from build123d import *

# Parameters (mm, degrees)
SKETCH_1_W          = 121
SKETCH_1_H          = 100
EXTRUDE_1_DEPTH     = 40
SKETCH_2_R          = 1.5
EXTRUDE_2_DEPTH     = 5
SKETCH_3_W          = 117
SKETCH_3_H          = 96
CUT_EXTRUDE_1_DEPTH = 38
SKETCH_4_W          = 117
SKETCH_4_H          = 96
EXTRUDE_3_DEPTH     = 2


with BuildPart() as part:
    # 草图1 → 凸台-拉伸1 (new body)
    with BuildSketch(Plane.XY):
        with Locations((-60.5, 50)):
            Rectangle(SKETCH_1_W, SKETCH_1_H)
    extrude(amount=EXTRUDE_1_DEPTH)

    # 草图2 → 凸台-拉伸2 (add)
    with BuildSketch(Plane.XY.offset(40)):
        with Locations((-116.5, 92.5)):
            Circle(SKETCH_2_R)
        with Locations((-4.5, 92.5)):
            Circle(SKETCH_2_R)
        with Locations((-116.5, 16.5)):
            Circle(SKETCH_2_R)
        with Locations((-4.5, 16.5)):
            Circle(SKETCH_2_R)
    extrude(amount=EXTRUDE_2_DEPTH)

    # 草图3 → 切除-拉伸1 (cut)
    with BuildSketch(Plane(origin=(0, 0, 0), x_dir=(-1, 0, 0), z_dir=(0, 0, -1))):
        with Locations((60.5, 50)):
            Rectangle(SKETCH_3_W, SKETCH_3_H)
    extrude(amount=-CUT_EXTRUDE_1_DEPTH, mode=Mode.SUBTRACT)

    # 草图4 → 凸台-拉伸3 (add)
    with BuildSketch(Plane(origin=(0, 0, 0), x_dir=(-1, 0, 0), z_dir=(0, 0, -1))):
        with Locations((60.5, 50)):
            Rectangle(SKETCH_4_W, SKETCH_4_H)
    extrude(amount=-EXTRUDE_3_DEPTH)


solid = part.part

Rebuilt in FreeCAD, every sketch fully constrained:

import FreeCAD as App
import Part
import Sketcher
from FreeCAD import Vector

doc = App.newDocument("Part")
body = doc.addObject("PartDesign::Body", "Body")

# Sketch on XY plane
sketch1 = doc.addObject("Sketcher::SketchObject", "Sketch")
body.addObject(sketch1)
sketch1.AttachmentSupport = (doc.XY_Plane, [""])
sketch1.MapMode = "FlatFace"
sketch1.addGeometry([
    Part.LineSegment(Vector(-121, 100, 0), Vector(-121, 0, 0)),
    Part.LineSegment(Vector(-121, 0, 0), Vector(0, 0, 0)),
    Part.LineSegment(Vector(0, 0, 0), Vector(0, 100, 0)),
    Part.LineSegment(Vector(0, 100, 0), Vector(-121, 100, 0)),
], False)
sketch1.addConstraint([
    Sketcher.Constraint("Coincident", 0, 2, 1, 1),
    Sketcher.Constraint("Coincident", 1, 2, 2, 1),
    Sketcher.Constraint("Coincident", 2, 2, 3, 1),
    Sketcher.Constraint("Coincident", 3, 2, 0, 1),
    Sketcher.Constraint("Vertical", 0),
    Sketcher.Constraint("Horizontal", 1),
    Sketcher.Constraint("Vertical", 2),
    Sketcher.Constraint("Horizontal", 3),
    Sketcher.Constraint("Coincident", 1, 2, -1, 1),
    Sketcher.Constraint("DistanceX", 1, 1, 1, 2, 121.0),
    Sketcher.Constraint("DistanceY", 0, 2, 0, 1, 100.0),
])
pad1 = doc.addObject("PartDesign::Pad", "Pad")
body.addObject(pad1)
pad1.Profile = sketch1
pad1.Length = 40

# Sketch on XY plane
sketch2 = doc.addObject("Sketcher::SketchObject", "Sketch001")
body.addObject(sketch2)
sketch2.AttachmentSupport = (doc.XY_Plane, [""])
sketch2.MapMode = "FlatFace"
sketch2.AttachmentOffset = App.Placement(Vector(0, 0, 40), App.Rotation())
sketch2.addGeometry([
    Part.Circle(Vector(-116.5, 92.5, 0), Vector(0, 0, 1), 1.5),
    Part.Circle(Vector(-4.5, 92.5, 0), Vector(0, 0, 1), 1.5),
    Part.Circle(Vector(-116.5, 16.5, 0), Vector(0, 0, 1), 1.5),
    Part.Circle(Vector(-4.5, 16.5, 0), Vector(0, 0, 1), 1.5),
], False)
sketch2.addConstraint([
    Sketcher.Constraint("Equal", 0, 1),
    Sketcher.Constraint("Equal", 1, 2),
    Sketcher.Constraint("Equal", 2, 3),
    Sketcher.Constraint("Horizontal", 0, 3, 1, 3),
    Sketcher.Constraint("Horizontal", 2, 3, 3, 3),
    Sketcher.Constraint("Vertical", 0, 3, 2, 3),
    Sketcher.Constraint("Vertical", 1, 3, 3, 3),
    Sketcher.Constraint("Diameter", 0, 3.0),
    Sketcher.Constraint("DistanceX", 0, 3, 1, 3, 112.0),
    Sketcher.Constraint("DistanceY", 2, 3, 0, 3, 76.0),
    Sketcher.Constraint("DistanceX", 0, 3, -1, 1, 116.5),
    Sketcher.Constraint("DistanceY", -1, 1, 0, 3, 92.5),
])
pad2 = doc.addObject("PartDesign::Pad", "Pad001")
body.addObject(pad2)
pad2.Profile = sketch2
pad2.Length = 5

# Sketch on XY plane
sketch3 = doc.addObject("Sketcher::SketchObject", "Sketch002")
body.addObject(sketch3)
sketch3.AttachmentSupport = (doc.XY_Plane, [""])
sketch3.MapMode = "FlatFace"
sketch3.addGeometry([
    Part.LineSegment(Vector(-2, 98, 0), Vector(-2, 2, 0)),
    Part.LineSegment(Vector(-2, 2, 0), Vector(-119, 2, 0)),
    Part.LineSegment(Vector(-119, 2, 0), Vector(-119, 98, 0)),
    Part.LineSegment(Vector(-119, 98, 0), Vector(-2, 98, 0)),
], False)
sketch3.addConstraint([
    Sketcher.Constraint("Coincident", 0, 2, 1, 1),
    Sketcher.Constraint("Coincident", 1, 2, 2, 1),
    Sketcher.Constraint("Coincident", 2, 2, 3, 1),
    Sketcher.Constraint("Coincident", 3, 2, 0, 1),
    Sketcher.Constraint("Vertical", 0),
    Sketcher.Constraint("Horizontal", 1),
    Sketcher.Constraint("Vertical", 2),
    Sketcher.Constraint("Horizontal", 3),
    Sketcher.Constraint("DistanceX", 1, 2, 1, 1, 117.0),
    Sketcher.Constraint("DistanceY", 0, 2, 0, 1, 96.0),
    Sketcher.Constraint("DistanceX", 0, 2, -1, 1, 2.0),
    Sketcher.Constraint("DistanceY", -1, 1, 0, 2, 2.0),
])
pocket1 = doc.addObject("PartDesign::Pocket", "Pocket")
body.addObject(pocket1)
pocket1.Profile = sketch3
pocket1.Length = 38
pocket1.Reversed = True

# Sketch on XY plane
sketch4 = doc.addObject("Sketcher::SketchObject", "Sketch003")
body.addObject(sketch4)
sketch4.AttachmentSupport = (doc.XY_Plane, [""])
sketch4.MapMode = "FlatFace"
sketch4.addGeometry([
    Part.LineSegment(Vector(-2, 98, 0), Vector(-2, 2, 0)),
    Part.LineSegment(Vector(-2, 2, 0), Vector(-119, 2, 0)),
    Part.LineSegment(Vector(-119, 2, 0), Vector(-119, 98, 0)),
    Part.LineSegment(Vector(-119, 98, 0), Vector(-2, 98, 0)),
], False)
sketch4.addConstraint([
    Sketcher.Constraint("Coincident", 0, 2, 1, 1),
    Sketcher.Constraint("Coincident", 1, 2, 2, 1),
    Sketcher.Constraint("Coincident", 2, 2, 3, 1),
    Sketcher.Constraint("Coincident", 3, 2, 0, 1),
    Sketcher.Constraint("Vertical", 0),
    Sketcher.Constraint("Horizontal", 1),
    Sketcher.Constraint("Vertical", 2),
    Sketcher.Constraint("Horizontal", 3),
    Sketcher.Constraint("DistanceX", 1, 2, 1, 1, 117.0),
    Sketcher.Constraint("DistanceY", 0, 2, 0, 1, 96.0),
    Sketcher.Constraint("DistanceX", 0, 2, -1, 1, 2.0),
    Sketcher.Constraint("DistanceY", -1, 1, 0, 2, 2.0),
])
pad3 = doc.addObject("PartDesign::Pad", "Pad002")
body.addObject(pad3)
pad3.Profile = sketch4
pad3.Length = 2

doc.recompute()
